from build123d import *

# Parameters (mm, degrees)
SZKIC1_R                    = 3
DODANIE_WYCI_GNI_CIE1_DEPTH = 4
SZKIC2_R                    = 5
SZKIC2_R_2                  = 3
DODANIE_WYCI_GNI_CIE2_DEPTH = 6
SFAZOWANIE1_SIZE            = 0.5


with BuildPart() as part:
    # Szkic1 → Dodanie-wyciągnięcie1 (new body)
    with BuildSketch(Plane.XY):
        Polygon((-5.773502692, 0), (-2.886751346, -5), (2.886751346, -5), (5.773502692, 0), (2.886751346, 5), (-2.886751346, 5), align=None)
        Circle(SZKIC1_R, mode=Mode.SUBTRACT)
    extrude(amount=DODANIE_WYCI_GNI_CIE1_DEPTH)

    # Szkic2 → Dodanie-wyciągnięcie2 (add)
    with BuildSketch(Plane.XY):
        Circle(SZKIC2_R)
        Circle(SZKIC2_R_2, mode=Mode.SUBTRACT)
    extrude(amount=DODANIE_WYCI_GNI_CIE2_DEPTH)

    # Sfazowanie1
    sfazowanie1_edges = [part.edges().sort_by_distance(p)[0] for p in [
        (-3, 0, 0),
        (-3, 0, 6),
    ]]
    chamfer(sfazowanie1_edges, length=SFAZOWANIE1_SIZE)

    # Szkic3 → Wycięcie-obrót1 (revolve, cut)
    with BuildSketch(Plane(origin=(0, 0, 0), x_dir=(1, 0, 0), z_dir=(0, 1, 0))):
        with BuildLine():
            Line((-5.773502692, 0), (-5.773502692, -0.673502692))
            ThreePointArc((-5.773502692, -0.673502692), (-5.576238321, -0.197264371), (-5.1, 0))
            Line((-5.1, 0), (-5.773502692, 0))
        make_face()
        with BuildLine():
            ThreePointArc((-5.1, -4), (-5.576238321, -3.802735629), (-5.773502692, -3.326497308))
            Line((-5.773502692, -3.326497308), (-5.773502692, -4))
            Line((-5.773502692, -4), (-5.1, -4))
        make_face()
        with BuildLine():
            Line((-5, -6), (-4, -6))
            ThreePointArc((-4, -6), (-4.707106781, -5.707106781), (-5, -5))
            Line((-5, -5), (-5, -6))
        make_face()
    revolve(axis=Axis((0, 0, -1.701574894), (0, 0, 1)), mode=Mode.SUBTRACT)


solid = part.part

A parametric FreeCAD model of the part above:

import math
import FreeCAD as App
import Part
import Sketcher

V = App.Vector
Q = App.Units.Quantity


def edges_at(feature, points):
    """Names of the edges that pass closest to the given points."""
    edges = feature.Shape.Edges
    near = lambda p: min(range(len(edges)), key=lambda i: edges[i].distToShape(Part.Vertex(*p))[0])
    return sorted({f"Edge{near(p) + 1}" for p in points})

doc = App.newDocument("Part")
params = doc.addObject("Spreadsheet::Sheet", "Params")
for row, (alias, value) in enumerate([
    ("sketch1_diameter", "6 mm"),
    ("pad1_length", "4 mm"),
    ("sketch2_diameter", "10 mm"),
    ("sketch2_diameter2", "6 mm"),
    ("pad2_length", "6 mm"),
    ("chamfer_size", "0.5 mm"),
    ("sketch3_radius", "1 mm"),
    ("groove_angle", "360 deg"),
], start=1):
    params.set(f"A{row}", alias)
    params.set(f"B{row}", "=" + value)
    params.setAlias(f"B{row}", alias)

body = doc.addObject("PartDesign::Body", "Body")

sketch1 = body.newObject("Sketcher::SketchObject", "Sketch")
sketch1.AttachmentSupport = (doc.getObject("XY_Plane"), [""])
sketch1.MapMode = "FlatFace"
sketch1.addGeometry([
    Part.LineSegment(V(-5.8, 0, 0), V(-2.9, -5, 0)),
    Part.LineSegment(V(-2.9, -5, 0), V(2.9, -5, 0)),
    Part.LineSegment(V(2.9, -5, 0), V(5.8, 0, 0)),
    Part.LineSegment(V(5.8, 0, 0), V(2.9, 5, 0)),
    Part.LineSegment(V(2.9, 5, 0), V(-2.9, 5, 0)),
    Part.LineSegment(V(-2.9, 5, 0), V(-5.8, 0, 0)),
    Part.Circle(V(0, 0, 0), V(0, 0, 1), 3),
], False)
sketch1.addConstraint([
    Sketcher.Constraint("Coincident", 0, 2, 1, 1),
    Sketcher.Constraint("Coincident", 1, 2, 2, 1),
    Sketcher.Constraint("Coincident", 2, 2, 3, 1),
    Sketcher.Constraint("Coincident", 3, 2, 4, 1),
    Sketcher.Constraint("Coincident", 4, 2, 5, 1),
    Sketcher.Constraint("Coincident", 5, 2, 0, 1),
    Sketcher.Constraint("Horizontal", 1),
    Sketcher.Constraint("Horizontal", 4),
    Sketcher.Constraint("Coincident", 6, 3, -1, 1),
    Sketcher.Constraint("Symmetric", 0, 2, 3, 2, -1, 1),
    Sketcher.Constraint("Symmetric", 2, 2, 5, 2, -1, 1),
    Sketcher.Constraint("PointOnObject", 2, 2, -1),
    Sketcher.Constraint("Parallel", 2, 5),
    Sketcher.Constraint("Vertical", 1, 2, 3, 2),
    Sketcher.Constraint("Diameter", 6, Q("6 mm")),
    Sketcher.Constraint("Angle", 0, Q("-60 deg")),
    Sketcher.Constraint("DistanceY", 0, 2, -1, 1, Q("5 mm")),
    Sketcher.Constraint("DistanceX", 1, 1, 1, 2, Q("5.773503 mm")),
])
sketch1.setExpression("Constraints[14]", "Params.sketch1_diameter")
pad1 = body.newObject("PartDesign::Pad", "Pad")
pad1.Profile = sketch1
pad1.setExpression("Length", "Params.pad1_length")

sketch2 = body.newObject("Sketcher::SketchObject", "Sketch001")
sketch2.AttachmentSupport = (doc.getObject("XY_Plane"), [""])
sketch2.MapMode = "FlatFace"
sketch2.addGeometry([
    Part.Circle(V(0, 0, 0), V(0, 0, 1), 5),
    Part.Circle(V(0, 0, 0), V(0, 0, 1), 3),
], False)
sketch2.addConstraint([
    Sketcher.Constraint("Coincident", 0, 3, -1, 1),
    Sketcher.Constraint("Coincident", 1, 3, -1, 1),
    Sketcher.Constraint("Diameter", 0, Q("10 mm")),
    Sketcher.Constraint("Diameter", 1, Q("6 mm")),
])
sketch2.setExpression("Constraints[2]", "Params.sketch2_diameter")
sketch2.setExpression("Constraints[3]", "Params.sketch2_diameter2")
pad2 = body.newObject("PartDesign::Pad", "Pad001")
pad2.Profile = sketch2
pad2.setExpression("Length", "Params.pad2_length")
doc.recompute()

chamfer = body.newObject("PartDesign::Chamfer", "Chamfer")
chamfer.Base = (pad2, edges_at(pad2, [(-3, 0, 0), (-3, 0, 6)]))
chamfer.setExpression("Size", "Params.chamfer_size")

sketch3 = body.newObject("Sketcher::SketchObject", "Sketch002")
sketch3.AttachmentSupport = (doc.getObject("XZ_Plane"), [""])
sketch3.MapMode = "FlatFace"
sketch3.addGeometry([
    Part.LineSegment(V(-5.8, 0, 0), V(-5.8, 0.7, 0)),
    Part.ArcOfCircle(Part.Circle(V(-5.1, 0.7, 0), V(0, 0, 1), 0.7), math.radians(180), math.radians(270)),
    Part.LineSegment(V(-5.1, 0, 0), V(-5.8, 0, 0)),
    Part.ArcOfCircle(Part.Circle(V(-5.1, 3.3, 0), V(0, 0, 1), 0.7), math.radians(90), math.radians(180)),
    Part.LineSegment(V(-5.8, 3.3, 0), V(-5.8, 4, 0)),
    Part.LineSegment(V(-5.8, 4, 0), V(-5.1, 4, 0)),
    Part.LineSegment(V(-5, 6, 0), V(-4, 6, 0)),
    Part.ArcOfCircle(Part.Circle(V(-4, 5, 0), V(0, 0, 1), 1), math.radians(90), math.radians(180)),
    Part.LineSegment(V(-5, 5, 0), V(-5, 6, 0)),
], False)
sketch3.addConstraint([
    Sketcher.Constraint("Tangent", 0, 2, 1, 1),
    Sketcher.Constraint("Tangent", 1, 2, 2, 1),
    Sketcher.Constraint("Coincident", 2, 2, 0, 1),
    Sketcher.Constraint("Tangent", 3, 2, 4, 1),
    Sketcher.Constraint("Coincident", 4, 2, 5, 1),
    Sketcher.Constraint("Tangent", 5, 2, 3, 1),
    Sketcher.Constraint("Tangent", 6, 2, 7, 1),
    Sketcher.Constraint("Tangent", 7, 2, 8, 1),
    Sketcher.Constraint("Coincident", 8, 2, 6, 1),
    Sketcher.Constraint("Vertical", 0),
    Sketcher.Constraint("Horizontal", 2),
    Sketcher.Constraint("Vertical", 4),
    Sketcher.Constraint("Horizontal", 5),
    Sketcher.Constraint("Horizontal", 6),
    Sketcher.Constraint("Vertical", 8),
    Sketcher.Constraint("Equal", 1, 3),
    Sketcher.Constraint("PointOnObject", 1, 2, -1),
    Sketcher.Constraint("Vertical", 1, 3, 3, 3),
    Sketcher.Constraint("Radius", 7, Q("1 mm")),
    Sketcher.Constraint("DistanceX", 7, 3, -1, 1, Q("4 mm")),
    Sketcher.Constraint("DistanceY", -1, 1, 7, 3, Q("5 mm")),
    Sketcher.Constraint("DistanceY", -1, 1, 4, 2, Q("4 mm")),
    Sketcher.Constraint("DistanceX", 1, 3, -1, 1, Q("5.1 mm")),
    Sketcher.Constraint("Radius", 1, Q("0.673503 mm")),
])
sketch3.setExpression("Constraints[18]", "Params.sketch3_radius")
groove = body.newObject("PartDesign::Groove", "Groove")
groove.Profile = sketch3
groove.ReferenceAxis = (sketch3, ["V_Axis"])
groove.setExpression("Angle", "Params.groove_angle")

doc.recompute()
